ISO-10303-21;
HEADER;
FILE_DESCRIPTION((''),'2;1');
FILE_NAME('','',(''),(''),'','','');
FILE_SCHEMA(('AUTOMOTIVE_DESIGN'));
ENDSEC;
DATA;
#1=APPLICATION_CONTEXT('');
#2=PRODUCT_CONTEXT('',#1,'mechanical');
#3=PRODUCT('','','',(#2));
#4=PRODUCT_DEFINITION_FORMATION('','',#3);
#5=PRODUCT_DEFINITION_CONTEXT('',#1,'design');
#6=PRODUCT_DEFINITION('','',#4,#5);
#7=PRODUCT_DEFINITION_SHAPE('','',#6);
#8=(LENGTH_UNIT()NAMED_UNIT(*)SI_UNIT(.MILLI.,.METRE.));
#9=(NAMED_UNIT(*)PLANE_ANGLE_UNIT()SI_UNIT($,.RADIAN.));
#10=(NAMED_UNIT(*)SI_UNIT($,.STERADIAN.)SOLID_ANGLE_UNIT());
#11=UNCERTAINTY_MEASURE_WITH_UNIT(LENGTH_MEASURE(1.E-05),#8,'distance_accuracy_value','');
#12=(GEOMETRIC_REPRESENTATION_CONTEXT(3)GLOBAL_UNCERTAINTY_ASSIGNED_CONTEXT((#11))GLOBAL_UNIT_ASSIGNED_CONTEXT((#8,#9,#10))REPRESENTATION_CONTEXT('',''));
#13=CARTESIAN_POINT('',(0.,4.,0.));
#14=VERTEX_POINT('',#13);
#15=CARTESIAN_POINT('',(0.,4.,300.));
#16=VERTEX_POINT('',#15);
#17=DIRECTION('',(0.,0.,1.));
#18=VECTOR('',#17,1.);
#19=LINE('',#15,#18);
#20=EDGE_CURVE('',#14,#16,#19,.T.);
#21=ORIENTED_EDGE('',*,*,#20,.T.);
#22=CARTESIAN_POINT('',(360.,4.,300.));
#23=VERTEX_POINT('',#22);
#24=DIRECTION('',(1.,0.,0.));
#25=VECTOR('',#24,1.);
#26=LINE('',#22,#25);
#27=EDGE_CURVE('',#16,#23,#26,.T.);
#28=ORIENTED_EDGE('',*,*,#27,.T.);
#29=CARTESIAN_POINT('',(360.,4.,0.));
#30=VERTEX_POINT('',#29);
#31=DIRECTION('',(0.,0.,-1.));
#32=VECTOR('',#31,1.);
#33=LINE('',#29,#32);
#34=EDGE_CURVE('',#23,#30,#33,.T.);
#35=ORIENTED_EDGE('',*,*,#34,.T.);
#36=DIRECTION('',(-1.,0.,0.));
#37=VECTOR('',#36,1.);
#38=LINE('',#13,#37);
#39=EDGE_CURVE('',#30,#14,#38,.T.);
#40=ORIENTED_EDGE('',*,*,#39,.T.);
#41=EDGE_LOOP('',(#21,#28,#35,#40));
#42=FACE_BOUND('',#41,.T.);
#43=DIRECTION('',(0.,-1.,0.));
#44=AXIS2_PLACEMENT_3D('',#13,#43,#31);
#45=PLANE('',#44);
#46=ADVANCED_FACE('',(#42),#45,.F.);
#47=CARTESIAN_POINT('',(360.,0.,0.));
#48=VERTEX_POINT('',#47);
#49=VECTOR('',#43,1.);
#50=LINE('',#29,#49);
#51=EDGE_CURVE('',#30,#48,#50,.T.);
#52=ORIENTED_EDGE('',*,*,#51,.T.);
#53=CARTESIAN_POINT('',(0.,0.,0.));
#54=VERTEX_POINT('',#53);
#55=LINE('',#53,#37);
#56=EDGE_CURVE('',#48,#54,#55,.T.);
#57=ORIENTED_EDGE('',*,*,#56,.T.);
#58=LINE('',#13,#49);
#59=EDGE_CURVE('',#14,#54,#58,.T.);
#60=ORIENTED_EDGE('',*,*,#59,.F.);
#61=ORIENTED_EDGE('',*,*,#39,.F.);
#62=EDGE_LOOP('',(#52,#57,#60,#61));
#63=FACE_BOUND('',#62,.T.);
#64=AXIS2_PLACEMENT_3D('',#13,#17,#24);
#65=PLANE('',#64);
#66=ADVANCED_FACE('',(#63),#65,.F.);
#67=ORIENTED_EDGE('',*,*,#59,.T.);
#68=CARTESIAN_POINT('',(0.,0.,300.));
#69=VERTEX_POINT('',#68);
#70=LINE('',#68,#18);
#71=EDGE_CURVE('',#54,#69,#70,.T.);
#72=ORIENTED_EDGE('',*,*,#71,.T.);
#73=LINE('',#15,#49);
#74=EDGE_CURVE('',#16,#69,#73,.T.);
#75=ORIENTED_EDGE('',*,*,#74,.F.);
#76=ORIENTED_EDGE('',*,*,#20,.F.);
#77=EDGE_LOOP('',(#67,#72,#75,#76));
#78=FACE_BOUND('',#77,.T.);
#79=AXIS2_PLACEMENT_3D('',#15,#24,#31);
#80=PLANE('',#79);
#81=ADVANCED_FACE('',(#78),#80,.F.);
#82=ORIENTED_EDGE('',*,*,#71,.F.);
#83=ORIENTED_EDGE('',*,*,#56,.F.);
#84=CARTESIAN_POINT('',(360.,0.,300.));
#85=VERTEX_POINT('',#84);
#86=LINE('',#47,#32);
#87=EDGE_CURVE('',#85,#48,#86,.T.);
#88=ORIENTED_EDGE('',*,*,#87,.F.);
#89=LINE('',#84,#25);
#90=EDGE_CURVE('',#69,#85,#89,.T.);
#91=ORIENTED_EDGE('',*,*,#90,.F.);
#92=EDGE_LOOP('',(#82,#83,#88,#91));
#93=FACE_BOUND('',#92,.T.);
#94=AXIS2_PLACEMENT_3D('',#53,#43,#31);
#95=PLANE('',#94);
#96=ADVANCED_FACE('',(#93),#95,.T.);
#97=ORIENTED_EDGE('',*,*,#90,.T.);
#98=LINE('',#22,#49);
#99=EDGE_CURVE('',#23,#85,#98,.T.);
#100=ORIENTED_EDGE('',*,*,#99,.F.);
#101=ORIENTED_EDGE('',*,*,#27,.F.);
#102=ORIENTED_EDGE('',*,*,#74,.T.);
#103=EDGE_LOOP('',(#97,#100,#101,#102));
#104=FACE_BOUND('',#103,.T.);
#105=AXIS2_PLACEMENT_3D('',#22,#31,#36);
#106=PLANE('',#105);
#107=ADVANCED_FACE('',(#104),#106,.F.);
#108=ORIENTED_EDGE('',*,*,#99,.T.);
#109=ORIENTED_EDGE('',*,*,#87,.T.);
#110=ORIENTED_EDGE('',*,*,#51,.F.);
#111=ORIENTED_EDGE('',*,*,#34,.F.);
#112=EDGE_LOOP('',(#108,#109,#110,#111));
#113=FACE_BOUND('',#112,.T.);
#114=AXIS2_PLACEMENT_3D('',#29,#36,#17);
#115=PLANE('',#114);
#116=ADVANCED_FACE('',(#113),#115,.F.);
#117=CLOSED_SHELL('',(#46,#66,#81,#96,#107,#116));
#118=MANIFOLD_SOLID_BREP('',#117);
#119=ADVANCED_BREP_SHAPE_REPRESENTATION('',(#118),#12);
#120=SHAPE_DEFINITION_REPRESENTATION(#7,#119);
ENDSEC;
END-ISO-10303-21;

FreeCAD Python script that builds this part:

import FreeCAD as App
import Part
import Sketcher
Q = App.Units.Quantity

doc = App.newDocument("Part")
body = doc.addObject("PartDesign::Body", "Body")

sketch1 = body.newObject("Sketcher::SketchObject", "Sketch")
sketch1.AttachmentSupport = (doc.getObject("XZ_Plane"), [""])
sketch1.MapMode = "FlatFace"
sketch1.addGeometry([
    Part.LineSegment(App.Vector(0, 0, 0), App.Vector(0, 300, 0)),
    Part.LineSegment(App.Vector(0, 300, 0), App.Vector(360, 300, 0)),
    Part.LineSegment(App.Vector(360, 300, 0), App.Vector(360, 0, 0)),
    Part.LineSegment(App.Vector(360, 0, 0), App.Vector(0, 0, 0)),
], False)
sketch1.addConstraint([
    Sketcher.Constraint("Coincident", 0, 2, 1, 1),
    Sketcher.Constraint("Coincident", 1, 2, 2, 1),
    Sketcher.Constraint("Coincident", 2, 2, 3, 1),
    Sketcher.Constraint("Coincident", 3, 2, 0, 1),
    Sketcher.Constraint("Vertical", 0),
    Sketcher.Constraint("Horizontal", 1),
    Sketcher.Constraint("Vertical", 2),
    Sketcher.Constraint("Horizontal", 3),
    Sketcher.Constraint("Coincident", 3, 2, -1, 1),
    Sketcher.Constraint("DistanceX", 1, 1, 1, 2, Q("360 mm")),
    Sketcher.Constraint("DistanceY", 0, 1, 0, 2, Q("300 mm")),
])
pad1 = body.newObject("PartDesign::Pad", "Pad")
pad1.Profile = sketch1
pad1.Length = 4
pad1.Reversed = True

doc.recompute()
